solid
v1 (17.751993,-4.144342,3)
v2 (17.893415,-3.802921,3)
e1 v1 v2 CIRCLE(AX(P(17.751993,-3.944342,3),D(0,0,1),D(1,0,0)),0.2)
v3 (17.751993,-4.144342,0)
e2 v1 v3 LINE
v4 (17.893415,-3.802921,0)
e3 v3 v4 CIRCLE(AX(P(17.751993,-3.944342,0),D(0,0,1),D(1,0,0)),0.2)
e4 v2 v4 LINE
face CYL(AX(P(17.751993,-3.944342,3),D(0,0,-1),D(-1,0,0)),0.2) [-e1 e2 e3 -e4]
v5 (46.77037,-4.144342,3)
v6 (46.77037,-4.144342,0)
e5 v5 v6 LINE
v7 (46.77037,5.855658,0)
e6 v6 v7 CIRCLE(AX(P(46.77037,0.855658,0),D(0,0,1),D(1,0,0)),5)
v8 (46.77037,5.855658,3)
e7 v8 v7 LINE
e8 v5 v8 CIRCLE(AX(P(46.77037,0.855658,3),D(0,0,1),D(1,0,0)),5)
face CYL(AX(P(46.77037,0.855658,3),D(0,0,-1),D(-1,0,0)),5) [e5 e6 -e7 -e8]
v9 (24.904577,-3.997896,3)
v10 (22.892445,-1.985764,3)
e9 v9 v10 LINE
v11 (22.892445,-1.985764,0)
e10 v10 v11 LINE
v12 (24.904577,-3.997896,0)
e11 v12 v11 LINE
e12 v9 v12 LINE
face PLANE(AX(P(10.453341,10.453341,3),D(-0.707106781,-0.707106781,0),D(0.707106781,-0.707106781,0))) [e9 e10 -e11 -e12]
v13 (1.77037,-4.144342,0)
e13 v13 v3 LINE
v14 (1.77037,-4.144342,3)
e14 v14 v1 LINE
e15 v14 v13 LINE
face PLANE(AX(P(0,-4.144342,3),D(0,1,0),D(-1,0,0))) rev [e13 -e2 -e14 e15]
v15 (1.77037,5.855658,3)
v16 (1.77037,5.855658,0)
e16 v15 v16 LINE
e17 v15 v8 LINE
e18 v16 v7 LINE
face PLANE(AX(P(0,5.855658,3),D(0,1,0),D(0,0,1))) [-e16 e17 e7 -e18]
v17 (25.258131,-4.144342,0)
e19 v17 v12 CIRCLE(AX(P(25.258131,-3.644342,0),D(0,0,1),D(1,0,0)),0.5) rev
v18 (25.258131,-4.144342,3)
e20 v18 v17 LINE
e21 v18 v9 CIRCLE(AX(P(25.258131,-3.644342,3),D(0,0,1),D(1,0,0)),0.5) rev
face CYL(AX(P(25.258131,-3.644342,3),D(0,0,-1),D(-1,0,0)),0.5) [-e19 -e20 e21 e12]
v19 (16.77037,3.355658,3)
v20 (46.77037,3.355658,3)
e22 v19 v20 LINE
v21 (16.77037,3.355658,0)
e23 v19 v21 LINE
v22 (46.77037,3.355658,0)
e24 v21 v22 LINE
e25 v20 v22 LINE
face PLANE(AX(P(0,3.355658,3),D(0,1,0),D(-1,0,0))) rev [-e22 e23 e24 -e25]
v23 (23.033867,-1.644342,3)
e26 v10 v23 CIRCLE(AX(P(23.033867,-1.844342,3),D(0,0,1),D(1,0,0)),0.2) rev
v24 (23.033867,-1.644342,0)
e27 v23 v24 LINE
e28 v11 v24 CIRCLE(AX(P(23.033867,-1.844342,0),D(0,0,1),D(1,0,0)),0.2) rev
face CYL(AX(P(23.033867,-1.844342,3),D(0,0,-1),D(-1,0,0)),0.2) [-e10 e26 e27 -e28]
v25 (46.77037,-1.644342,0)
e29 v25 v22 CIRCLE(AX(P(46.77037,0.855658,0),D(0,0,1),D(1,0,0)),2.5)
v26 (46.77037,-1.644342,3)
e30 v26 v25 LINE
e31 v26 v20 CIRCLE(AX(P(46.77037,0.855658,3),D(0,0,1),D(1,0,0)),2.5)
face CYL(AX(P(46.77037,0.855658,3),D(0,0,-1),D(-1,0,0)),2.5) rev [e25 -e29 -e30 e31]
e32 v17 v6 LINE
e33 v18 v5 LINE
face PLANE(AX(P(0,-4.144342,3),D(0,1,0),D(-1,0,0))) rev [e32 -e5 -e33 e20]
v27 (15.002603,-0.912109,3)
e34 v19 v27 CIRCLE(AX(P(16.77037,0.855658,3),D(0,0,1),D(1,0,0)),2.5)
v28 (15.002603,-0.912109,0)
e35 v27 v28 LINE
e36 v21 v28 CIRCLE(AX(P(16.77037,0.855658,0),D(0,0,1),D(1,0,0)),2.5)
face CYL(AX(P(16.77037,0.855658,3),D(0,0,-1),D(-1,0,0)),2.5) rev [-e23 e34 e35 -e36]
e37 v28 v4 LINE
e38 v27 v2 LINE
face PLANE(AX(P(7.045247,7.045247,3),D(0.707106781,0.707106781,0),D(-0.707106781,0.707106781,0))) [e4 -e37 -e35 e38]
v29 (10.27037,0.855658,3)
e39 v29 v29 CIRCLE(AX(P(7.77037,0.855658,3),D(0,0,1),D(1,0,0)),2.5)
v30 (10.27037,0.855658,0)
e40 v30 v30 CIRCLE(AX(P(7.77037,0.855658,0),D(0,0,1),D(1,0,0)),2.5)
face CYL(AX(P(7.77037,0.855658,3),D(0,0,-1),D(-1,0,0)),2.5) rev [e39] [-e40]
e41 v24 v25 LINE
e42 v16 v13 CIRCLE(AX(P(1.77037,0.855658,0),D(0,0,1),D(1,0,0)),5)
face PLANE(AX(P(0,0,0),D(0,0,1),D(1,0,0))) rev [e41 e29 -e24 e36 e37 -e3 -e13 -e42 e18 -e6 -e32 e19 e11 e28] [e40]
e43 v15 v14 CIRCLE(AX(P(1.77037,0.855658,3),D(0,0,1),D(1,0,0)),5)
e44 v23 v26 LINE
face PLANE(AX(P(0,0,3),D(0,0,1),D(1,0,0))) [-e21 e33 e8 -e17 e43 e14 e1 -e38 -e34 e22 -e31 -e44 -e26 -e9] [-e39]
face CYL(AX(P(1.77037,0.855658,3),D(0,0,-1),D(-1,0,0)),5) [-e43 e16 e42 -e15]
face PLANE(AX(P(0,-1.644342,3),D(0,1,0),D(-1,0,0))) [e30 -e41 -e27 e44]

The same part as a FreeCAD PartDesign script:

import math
import FreeCAD as App
import Part
import Sketcher

V = App.Vector
Q = App.Units.Quantity

doc = App.newDocument("Part")
params = doc.addObject("Spreadsheet::Sheet", "Params")
for row, (alias, value) in enumerate([
    ("sketch1_diameter", "5 mm"),
    ("sketch1_radius", "5 mm"),
    ("sketch1_radius2", "0.2 mm"),
    ("sketch1_radius3", "0.5 mm"),
    ("sketch1_width", "30 mm"),
    ("pad1_length", "3 mm"),
], start=1):
    params.set(f"A{row}", alias)
    params.set(f"B{row}", "=" + value)
    params.setAlias(f"B{row}", alias)

body = doc.addObject("PartDesign::Body", "Body")

sketch1 = doc.addObject("Sketcher::SketchObject", "Sketch")
body.addObject(sketch1)
sketch1.AttachmentSupport = (doc.XY_Plane, [""])
sketch1.MapMode = "FlatFace"
sketch1.addGeometry([
    Part.LineSegment(V(16.77, 3.36, 0), V(46.77, 3.36, 0)),
    Part.ArcOfCircle(Part.Circle(V(46.77, 0.86, 0), V(0, 0, 1), 2.5), math.radians(-90), math.radians(90)),
    Part.LineSegment(V(46.77, -1.64, 0), V(23.03, -1.64, 0)),
    Part.ArcOfCircle(Part.Circle(V(23.03, -1.84, 0), V(0, 0, 1), 0.2), math.radians(90), math.radians(225)),
    Part.LineSegment(V(22.89, -1.99, 0), V(24.9, -4, 0)),
    Part.ArcOfCircle(Part.Circle(V(25.26, -3.64, 0), V(0, 0, 1), 0.5), math.radians(-135), math.radians(-90)),
    Part.LineSegment(V(25.26, -4.14, 0), V(46.77, -4.14, 0)),
    Part.ArcOfCircle(Part.Circle(V(46.77, 0.86, 0), V(0, 0, 1), 5), math.radians(-90), math.radians(90)),
    Part.LineSegment(V(46.77, 5.86, 0), V(1.77, 5.86, 0)),
    Part.ArcOfCircle(Part.Circle(V(1.77, 0.86, 0), V(0, 0, 1), 5), math.radians(90), math.radians(270)),
    Part.LineSegment(V(1.77, -4.14, 0), V(17.75, -4.14, 0)),
    Part.ArcOfCircle(Part.Circle(V(17.75, -3.94, 0), V(0, 0, 1), 0.2), math.radians(-90), math.radians(45)),
    Part.LineSegment(V(17.89, -3.8, 0), V(15, -0.91, 0)),
    Part.ArcOfCircle(Part.Circle(V(16.77, 0.86, 0), V(0, 0, 1), 2.5), math.radians(90), math.radians(225)),
    Part.Circle(V(7.77, 0.86, 0), V(0, 0, 1), 2.5),
], False)
sketch1.addConstraint([
    Sketcher.Constraint("Tangent", 0, 2, 1, 2),
    Sketcher.Constraint("Tangent", 1, 1, 2, 1),
    Sketcher.Constraint("Tangent", 2, 2, 3, 1),
    Sketcher.Constraint("Tangent", 3, 2, 4, 1),
    Sketcher.Constraint("Tangent", 4, 2, 5, 1),
    Sketcher.Constraint("Tangent", 5, 2, 6, 1),
    Sketcher.Constraint("Tangent", 6, 2, 7, 1),
    Sketcher.Constraint("Tangent", 7, 2, 8, 1),
    Sketcher.Constraint("Tangent", 8, 2, 9, 1),
    Sketcher.Constraint("Tangent", 9, 2, 10, 1),
    Sketcher.Constraint("Tangent", 10, 2, 11, 1),
    Sketcher.Constraint("Tangent", 11, 2, 12, 1),
    Sketcher.Constraint("Tangent", 12, 2, 13, 2),
    Sketcher.Constraint("Tangent", 13, 1, 0, 1),
    Sketcher.Constraint("Horizontal", 0),
    Sketcher.Constraint("Horizontal", 2),
    Sketcher.Constraint("Horizontal", 6),
    Sketcher.Constraint("Horizontal", 8),
    Sketcher.Constraint("Horizontal", 10),
    Sketcher.Constraint("Coincident", 7, 3, 1, 3),
    Sketcher.Constraint("Equal", 7, 9),
    Sketcher.Constraint("Equal", 3, 11),
    Sketcher.Constraint("Equal", 1, 13),
    Sketcher.Constraint("Equal", 13, 14),
    Sketcher.Constraint("Parallel", 4, 12),
    Sketcher.Constraint("Horizontal", 13, 3, 14, 3),
    Sketcher.Constraint("Diameter", 14, Q("5 mm")),
    Sketcher.Constraint("Radius", 7, Q("5 mm")),
    Sketcher.Constraint("Radius", 3, Q("0.2 mm")),
    Sketcher.Constraint("Radius", 5, Q("0.5 mm")),
    Sketcher.Constraint("DistanceX", 0, 1, 0, 2, Q("30 mm")),
    Sketcher.Constraint("DistanceX", 8, 2, 8, 1, Q("45 mm")),
    Sketcher.Constraint("Angle", 4, Q("-45 deg")),
    Sketcher.Constraint("DistanceX", 9, 3, 14, 3, Q("6 mm")),
    Sketcher.Constraint("DistanceX", 6, 1, 6, 2, Q("21.512239 mm")),
    Sketcher.Constraint("DistanceX", -1, 1, 1, 3, Q("46.77037 mm")),
    Sketcher.Constraint("DistanceY", 11, 2, -1, 1, Q("3.802921 mm")),
])
sketch1.setExpression("Constraints[26]", "Params.sketch1_diameter")
sketch1.setExpression("Constraints[27]", "Params.sketch1_radius")
sketch1.setExpression("Constraints[28]", "Params.sketch1_radius2")
sketch1.setExpression("Constraints[29]", "Params.sketch1_radius3")
sketch1.setExpression("Constraints[30]", "Params.sketch1_width")
pad1 = doc.addObject("PartDesign::Pad", "Pad")
body.addObject(pad1)
pad1.Profile = sketch1
pad1.setExpression("Length", "Params.pad1_length")

doc.recompute()
